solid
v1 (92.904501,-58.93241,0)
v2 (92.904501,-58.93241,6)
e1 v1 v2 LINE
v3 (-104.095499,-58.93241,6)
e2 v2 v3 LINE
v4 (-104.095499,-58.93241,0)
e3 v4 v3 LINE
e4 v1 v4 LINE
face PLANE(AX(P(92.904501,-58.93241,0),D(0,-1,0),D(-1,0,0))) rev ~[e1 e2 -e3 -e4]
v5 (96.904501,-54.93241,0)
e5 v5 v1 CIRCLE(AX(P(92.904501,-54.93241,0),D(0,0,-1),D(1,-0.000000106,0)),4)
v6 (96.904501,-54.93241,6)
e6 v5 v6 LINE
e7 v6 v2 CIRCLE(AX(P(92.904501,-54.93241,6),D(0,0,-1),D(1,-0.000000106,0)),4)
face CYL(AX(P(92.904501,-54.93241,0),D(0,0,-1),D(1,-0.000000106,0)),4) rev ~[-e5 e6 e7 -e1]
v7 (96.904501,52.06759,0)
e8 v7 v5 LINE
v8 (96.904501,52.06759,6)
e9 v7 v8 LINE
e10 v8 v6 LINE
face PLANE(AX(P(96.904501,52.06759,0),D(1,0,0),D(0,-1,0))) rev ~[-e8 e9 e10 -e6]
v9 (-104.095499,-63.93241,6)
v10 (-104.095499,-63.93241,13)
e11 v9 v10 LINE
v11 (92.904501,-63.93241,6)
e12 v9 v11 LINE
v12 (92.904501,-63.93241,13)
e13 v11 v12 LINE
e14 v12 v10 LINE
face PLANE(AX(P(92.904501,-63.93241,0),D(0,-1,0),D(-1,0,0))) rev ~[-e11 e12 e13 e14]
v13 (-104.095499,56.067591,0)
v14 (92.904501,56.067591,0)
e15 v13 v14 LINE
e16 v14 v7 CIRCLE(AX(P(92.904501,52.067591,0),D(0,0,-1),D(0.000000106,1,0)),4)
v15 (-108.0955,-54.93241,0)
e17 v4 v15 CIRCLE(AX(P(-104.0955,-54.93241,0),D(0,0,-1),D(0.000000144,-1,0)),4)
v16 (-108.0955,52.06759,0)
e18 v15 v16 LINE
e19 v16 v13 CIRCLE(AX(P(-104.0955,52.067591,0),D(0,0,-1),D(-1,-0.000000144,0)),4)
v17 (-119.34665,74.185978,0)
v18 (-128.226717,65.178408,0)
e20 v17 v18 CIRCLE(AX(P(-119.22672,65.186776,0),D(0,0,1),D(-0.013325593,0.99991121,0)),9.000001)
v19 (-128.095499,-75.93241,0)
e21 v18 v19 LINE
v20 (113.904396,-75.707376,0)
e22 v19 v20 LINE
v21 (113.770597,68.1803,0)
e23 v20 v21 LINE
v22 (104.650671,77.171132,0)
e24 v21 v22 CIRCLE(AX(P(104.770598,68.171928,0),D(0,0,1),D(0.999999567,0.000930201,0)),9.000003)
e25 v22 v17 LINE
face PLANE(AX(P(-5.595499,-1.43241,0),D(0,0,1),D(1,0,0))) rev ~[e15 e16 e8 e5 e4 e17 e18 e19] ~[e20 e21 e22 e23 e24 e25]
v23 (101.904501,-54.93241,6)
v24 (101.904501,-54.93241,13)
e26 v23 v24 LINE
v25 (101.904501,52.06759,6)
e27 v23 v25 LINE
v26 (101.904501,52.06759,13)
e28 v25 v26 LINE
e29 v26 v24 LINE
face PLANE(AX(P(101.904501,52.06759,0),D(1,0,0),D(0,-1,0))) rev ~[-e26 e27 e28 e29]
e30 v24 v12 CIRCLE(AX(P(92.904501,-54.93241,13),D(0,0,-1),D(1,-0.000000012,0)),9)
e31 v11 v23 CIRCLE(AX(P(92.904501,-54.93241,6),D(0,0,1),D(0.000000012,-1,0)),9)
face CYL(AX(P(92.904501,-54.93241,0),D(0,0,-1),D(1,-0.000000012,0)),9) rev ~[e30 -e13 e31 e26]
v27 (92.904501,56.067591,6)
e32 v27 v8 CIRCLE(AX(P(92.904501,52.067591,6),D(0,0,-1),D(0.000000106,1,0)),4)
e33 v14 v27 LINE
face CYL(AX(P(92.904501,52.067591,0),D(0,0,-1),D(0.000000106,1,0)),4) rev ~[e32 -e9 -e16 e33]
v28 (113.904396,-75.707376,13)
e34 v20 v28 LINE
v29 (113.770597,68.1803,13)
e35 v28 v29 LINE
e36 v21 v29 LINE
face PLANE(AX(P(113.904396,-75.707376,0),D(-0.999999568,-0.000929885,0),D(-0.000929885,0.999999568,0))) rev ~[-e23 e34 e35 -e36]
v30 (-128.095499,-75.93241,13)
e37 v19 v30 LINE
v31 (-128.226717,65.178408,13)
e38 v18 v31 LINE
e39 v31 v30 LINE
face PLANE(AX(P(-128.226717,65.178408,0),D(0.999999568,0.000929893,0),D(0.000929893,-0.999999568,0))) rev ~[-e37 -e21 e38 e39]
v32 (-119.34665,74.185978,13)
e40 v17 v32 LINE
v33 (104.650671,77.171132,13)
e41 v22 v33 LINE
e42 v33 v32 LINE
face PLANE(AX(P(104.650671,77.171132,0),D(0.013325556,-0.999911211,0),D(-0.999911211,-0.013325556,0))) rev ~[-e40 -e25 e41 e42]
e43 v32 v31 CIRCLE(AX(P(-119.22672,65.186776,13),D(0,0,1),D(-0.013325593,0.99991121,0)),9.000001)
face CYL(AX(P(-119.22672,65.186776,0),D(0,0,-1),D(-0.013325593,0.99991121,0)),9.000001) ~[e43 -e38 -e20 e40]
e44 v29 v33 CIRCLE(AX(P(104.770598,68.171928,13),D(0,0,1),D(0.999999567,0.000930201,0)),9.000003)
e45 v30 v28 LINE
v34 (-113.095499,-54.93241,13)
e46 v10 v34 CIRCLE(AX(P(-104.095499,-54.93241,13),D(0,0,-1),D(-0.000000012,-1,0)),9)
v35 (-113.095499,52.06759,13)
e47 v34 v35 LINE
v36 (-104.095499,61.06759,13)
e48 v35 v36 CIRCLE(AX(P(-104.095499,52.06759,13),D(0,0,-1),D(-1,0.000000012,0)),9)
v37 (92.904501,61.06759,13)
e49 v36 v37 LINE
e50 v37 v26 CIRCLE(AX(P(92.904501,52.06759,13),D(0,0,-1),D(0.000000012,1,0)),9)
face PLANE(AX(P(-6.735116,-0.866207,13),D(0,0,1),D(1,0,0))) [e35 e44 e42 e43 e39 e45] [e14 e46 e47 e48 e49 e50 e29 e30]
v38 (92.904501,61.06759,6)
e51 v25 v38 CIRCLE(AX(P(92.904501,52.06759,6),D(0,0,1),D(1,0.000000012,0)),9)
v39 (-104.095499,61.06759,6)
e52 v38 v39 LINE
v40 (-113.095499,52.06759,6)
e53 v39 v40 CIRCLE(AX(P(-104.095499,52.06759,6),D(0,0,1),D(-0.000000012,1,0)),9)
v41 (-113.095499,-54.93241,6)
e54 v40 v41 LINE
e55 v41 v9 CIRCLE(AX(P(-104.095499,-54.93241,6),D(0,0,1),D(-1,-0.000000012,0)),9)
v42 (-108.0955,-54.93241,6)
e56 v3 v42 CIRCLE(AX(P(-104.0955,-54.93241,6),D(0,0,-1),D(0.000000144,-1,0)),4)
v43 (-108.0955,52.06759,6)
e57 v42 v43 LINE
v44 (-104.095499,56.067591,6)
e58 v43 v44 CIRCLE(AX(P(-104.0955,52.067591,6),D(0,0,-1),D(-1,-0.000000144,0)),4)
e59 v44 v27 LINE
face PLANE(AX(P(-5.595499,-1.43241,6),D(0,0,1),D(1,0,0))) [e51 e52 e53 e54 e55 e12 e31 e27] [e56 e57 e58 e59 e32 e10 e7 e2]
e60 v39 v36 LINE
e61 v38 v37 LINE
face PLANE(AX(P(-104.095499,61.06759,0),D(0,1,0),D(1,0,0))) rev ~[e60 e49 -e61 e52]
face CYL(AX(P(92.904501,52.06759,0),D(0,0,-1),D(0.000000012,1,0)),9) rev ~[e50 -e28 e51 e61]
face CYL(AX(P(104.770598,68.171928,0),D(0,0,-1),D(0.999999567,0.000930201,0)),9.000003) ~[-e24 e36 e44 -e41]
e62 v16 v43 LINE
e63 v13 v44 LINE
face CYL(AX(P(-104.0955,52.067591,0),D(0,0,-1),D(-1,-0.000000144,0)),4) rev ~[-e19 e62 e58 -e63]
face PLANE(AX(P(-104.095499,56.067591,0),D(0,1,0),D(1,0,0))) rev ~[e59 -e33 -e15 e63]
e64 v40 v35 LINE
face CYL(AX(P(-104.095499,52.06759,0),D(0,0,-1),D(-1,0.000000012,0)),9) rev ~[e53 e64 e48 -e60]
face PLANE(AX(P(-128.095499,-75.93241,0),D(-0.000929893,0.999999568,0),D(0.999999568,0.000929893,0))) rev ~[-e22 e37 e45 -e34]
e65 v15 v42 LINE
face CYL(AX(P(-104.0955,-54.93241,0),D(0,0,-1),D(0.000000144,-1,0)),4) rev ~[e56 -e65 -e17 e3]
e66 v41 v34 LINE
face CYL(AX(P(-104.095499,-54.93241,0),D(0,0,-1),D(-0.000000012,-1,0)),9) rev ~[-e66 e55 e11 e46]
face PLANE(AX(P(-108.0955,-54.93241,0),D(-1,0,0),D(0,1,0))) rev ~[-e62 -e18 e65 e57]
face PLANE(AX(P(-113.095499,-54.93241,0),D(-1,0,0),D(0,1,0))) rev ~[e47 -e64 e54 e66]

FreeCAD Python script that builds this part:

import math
import FreeCAD as App
import Part
import Sketcher

V = App.Vector
Q = App.Units.Quantity

doc = App.newDocument("Part")
body = doc.addObject("PartDesign::Body", "Body")

# Sketch on XY plane
sketch1 = body.newObject("Sketcher::SketchObject", "Sketch")
sketch1.AttachmentSupport = (doc.getObject("XY_Plane"), [""])
sketch1.MapMode = "FlatFace"
sketch1.addGeometry(Part.LineSegment(V(-128, 65, 0), V(-128, -76, 0)), False)
sketch1.addGeometry(Part.LineSegment(V(-128, -76, 0), V(114, -76, 0)), False)
sketch1.addGeometry(Part.LineSegment(V(114, -76, 0), V(114, 68, 0)), False)
sketch1.addGeometry(Part.ArcOfCircle(Part.Circle(V(105, 68, 0), V(0, 0, 1), 9), math.radians(0), math.radians(91)), False)
sketch1.addGeometry(Part.LineSegment(V(105, 77, 0), V(-119, 74, 0)), False)
sketch1.addGeometry(Part.ArcOfCircle(Part.Circle(V(-119, 65, 0), V(0, 0, 1), 9), math.radians(91), math.radians(180)), False)
sketch1.addGeometry(Part.ArcOfCircle(Part.Circle(V(93, -55, 0), V(0, 0, 1), 9), math.radians(-90), math.radians(0)), False)
sketch1.addGeometry(Part.LineSegment(V(93, -64, 0), V(-104, -64, 0)), False)
sketch1.addGeometry(Part.ArcOfCircle(Part.Circle(V(-104, -55, 0), V(0, 0, 1), 9), math.radians(-180), math.radians(-90)), False)
sketch1.addGeometry(Part.LineSegment(V(-113, -55, 0), V(-113, 52, 0)), False)
sketch1.addGeometry(Part.ArcOfCircle(Part.Circle(V(-104, 52, 0), V(0, 0, 1), 9), math.radians(90), math.radians(180)), False)
sketch1.addGeometry(Part.LineSegment(V(-104, 61, 0), V(93, 61, 0)), False)
sketch1.addGeometry(Part.ArcOfCircle(Part.Circle(V(93, 52, 0), V(0, 0, 1), 9), math.radians(0), math.radians(90)), False)
sketch1.addGeometry(Part.LineSegment(V(102, 52, 0), V(102, -55, 0)), False)
sketch1.addConstraint(Sketcher.Constraint("Coincident", 0, 2, 1, 1))
sketch1.addConstraint(Sketcher.Constraint("Coincident", 1, 2, 2, 1))
sketch1.addConstraint(Sketcher.Constraint("Tangent", 2, 2, 3, 1))
sketch1.addConstraint(Sketcher.Constraint("Tangent", 3, 2, 4, 1))
sketch1.addConstraint(Sketcher.Constraint("Tangent", 4, 2, 5, 1))
sketch1.addConstraint(Sketcher.Constraint("Tangent", 5, 2, 0, 1))
sketch1.addConstraint(Sketcher.Constraint("Tangent", 6, 1, 7, 1))
sketch1.addConstraint(Sketcher.Constraint("Tangent", 7, 2, 8, 2))
sketch1.addConstraint(Sketcher.Constraint("Tangent", 8, 1, 9, 1))
sketch1.addConstraint(Sketcher.Constraint("Tangent", 9, 2, 10, 2))
sketch1.addConstraint(Sketcher.Constraint("Tangent", 10, 1, 11, 1))
sketch1.addConstraint(Sketcher.Constraint("Tangent", 11, 2, 12, 2))
sketch1.addConstraint(Sketcher.Constraint("Tangent", 12, 1, 13, 1))
sketch1.addConstraint(Sketcher.Constraint("Tangent", 13, 2, 6, 2))
sketch1.addConstraint(Sketcher.Constraint("Horizontal", 7))
sketch1.addConstraint(Sketcher.Constraint("Vertical", 9))
sketch1.addConstraint(Sketcher.Constraint("Horizontal", 11))
sketch1.addConstraint(Sketcher.Constraint("Vertical", 13))
sketch1.addConstraint(Sketcher.Constraint("Equal", 3, 5))
sketch1.addConstraint(Sketcher.Constraint("Equal", 5, 6))
sketch1.addConstraint(Sketcher.Constraint("Equal", 6, 8))
sketch1.addConstraint(Sketcher.Constraint("Equal", 8, 10))
sketch1.addConstraint(Sketcher.Constraint("Equal", 10, 12))
sketch1.addConstraint(Sketcher.Constraint("Perpendicular", 0, 1))
sketch1.addConstraint(Sketcher.Constraint("Perpendicular", 1, 2))
sketch1.addConstraint(Sketcher.Constraint("Radius", 5, Q("9.000001 mm")))
sketch1.addConstraint(Sketcher.Constraint("DistanceX", 7, 2, 7, 1, Q("197 mm")))
sketch1.addConstraint(Sketcher.Constraint("DistanceY", 9, 1, 9, 2, Q("107 mm")))
sketch1.addConstraint(Sketcher.Constraint("Distance", 1, Q("242 mm")))
sketch1.addConstraint(Sketcher.Constraint("DistanceX", 0, 2, 8, 3, Q("24 mm")))
sketch1.addConstraint(Sketcher.Constraint("DistanceY", 0, 2, 8, 3, Q("21 mm")))
sketch1.addConstraint(Sketcher.Constraint("DistanceX", -1, 1, 3, 3, Q("104.770598 mm")))
sketch1.addConstraint(Sketcher.Constraint("DistanceX", -1, 1, 6, 3, Q("92.904501 mm")))
sketch1.addConstraint(Sketcher.Constraint("DistanceY", -1, 1, 2, 2, Q("68.1803 mm")))
sketch1.addConstraint(Sketcher.Constraint("Distance", 0, Q("141.110879 mm")))
sketch1.addConstraint(Sketcher.Constraint("Distance", 2, Q("143.887738 mm")))
pad1 = body.newObject("PartDesign::Pad", "Pad")
pad1.Profile = sketch1
pad1.Length = 13

# Sketch on XY plane
sketch2 = body.newObject("Sketcher::SketchObject", "Sketch001")
sketch2.AttachmentSupport = (doc.getObject("XY_Plane"), [""])
sketch2.MapMode = "FlatFace"
sketch2.addGeometry(Part.ArcOfCircle(Part.Circle(V(-104.1, -54.9, 0), V(0, 0, 1), 9), math.radians(-180), math.radians(-90)), False)
sketch2.addGeometry(Part.LineSegment(V(-104.1, -63.9, 0), V(92.9, -63.9, 0)), False)
sketch2.addGeometry(Part.ArcOfCircle(Part.Circle(V(92.9, -54.9, 0), V(0, 0, 1), 9), math.radians(-90), math.radians(0)), False)
sketch2.addGeometry(Part.LineSegment(V(101.9, -54.9, 0), V(101.9, 52.1, 0)), False)
sketch2.addGeometry(Part.ArcOfCircle(Part.Circle(V(92.9, 52.1, 0), V(0, 0, 1), 9), math.radians(0), math.radians(90)), False)
sketch2.addGeometry(Part.LineSegment(V(92.9, 61.1, 0), V(-104.1, 61.1, 0)), False)
sketch2.addGeometry(Part.ArcOfCircle(Part.Circle(V(-104.1, 52.1, 0), V(0, 0, 1), 9), math.radians(90), math.radians(180)), False)
sketch2.addGeometry(Part.LineSegment(V(-113.1, 52.1, 0), V(-113.1, -54.9, 0)), False)
sketch2.addGeometry(Part.LineSegment(V(96.9, 52.1, 0), V(96.9, -54.9, 0)), False)
sketch2.addGeometry(Part.ArcOfCircle(Part.Circle(V(92.9, -54.9, 0), V(0, 0, 1), 4), math.radians(-90), math.radians(0)), False)
sketch2.addGeometry(Part.LineSegment(V(92.9, -58.9, 0), V(-104.1, -58.9, 0)), False)
sketch2.addGeometry(Part.ArcOfCircle(Part.Circle(V(-104.1, -54.9, 0), V(0, 0, 1), 4), math.radians(-180), math.radians(-90)), False)
sketch2.addGeometry(Part.LineSegment(V(-108.1, -54.9, 0), V(-108.1, 52.1, 0)), False)
sketch2.addGeometry(Part.ArcOfCircle(Part.Circle(V(-104.1, 52.1, 0), V(0, 0, 1), 4), math.radians(90), math.radians(180)), False)
sketch2.addGeometry(Part.LineSegment(V(-104.1, 56.1, 0), V(92.9, 56.1, 0)), False)
sketch2.addGeometry(Part.ArcOfCircle(Part.Circle(V(92.9, 52.1, 0), V(0, 0, 1), 4), math.radians(0), math.radians(90)), False)
sketch2.addConstraint(Sketcher.Constraint("Tangent", 0, 2, 1, 1))
sketch2.addConstraint(Sketcher.Constraint("Tangent", 1, 2, 2, 1))
sketch2.addConstraint(Sketcher.Constraint("Tangent", 2, 2, 3, 1))
sketch2.addConstraint(Sketcher.Constraint("Tangent", 3, 2, 4, 1))
sketch2.addConstraint(Sketcher.Constraint("Tangent", 4, 2, 5, 1))
sketch2.addConstraint(Sketcher.Constraint("Tangent", 5, 2, 6, 1))
sketch2.addConstraint(Sketcher.Constraint("Tangent", 6, 2, 7, 1))
sketch2.addConstraint(Sketcher.Constraint("Tangent", 7, 2, 0, 1))
sketch2.addConstraint(Sketcher.Constraint("Tangent", 8, 2, 9, 2))
sketch2.addConstraint(Sketcher.Constraint("Tangent", 9, 1, 10, 1))
sketch2.addConstraint(Sketcher.Constraint("Tangent", 10, 2, 11, 2))
sketch2.addConstraint(Sketcher.Constraint("Tangent", 11, 1, 12, 1))
sketch2.addConstraint(Sketcher.Constraint("Tangent", 12, 2, 13, 2))
sketch2.addConstraint(Sketcher.Constraint("Tangent", 13, 1, 14, 1))
sketch2.addConstraint(Sketcher.Constraint("Tangent", 14, 2, 15, 2))
sketch2.addConstraint(Sketcher.Constraint("Tangent", 15, 1, 8, 1))
sketch2.addConstraint(Sketcher.Constraint("Horizontal", 1))
sketch2.addConstraint(Sketcher.Constraint("Vertical", 3))
sketch2.addConstraint(Sketcher.Constraint("Horizontal", 5))
sketch2.addConstraint(Sketcher.Constraint("Vertical", 7))
sketch2.addConstraint(Sketcher.Constraint("Vertical", 8))
sketch2.addConstraint(Sketcher.Constraint("Horizontal", 10))
sketch2.addConstraint(Sketcher.Constraint("Vertical", 12))
sketch2.addConstraint(Sketcher.Constraint("Horizontal", 14))
sketch2.addConstraint(Sketcher.Constraint("Coincident", 9, 3, 2, 3))
sketch2.addConstraint(Sketcher.Constraint("Coincident", 11, 3, 0, 3))
sketch2.addConstraint(Sketcher.Constraint("Coincident", 13, 3, 6, 3))
sketch2.addConstraint(Sketcher.Constraint("Equal", 0, 2))
sketch2.addConstraint(Sketcher.Constraint("Equal", 2, 4))
sketch2.addConstraint(Sketcher.Constraint("Equal", 4, 6))
sketch2.addConstraint(Sketcher.Constraint("Equal", 13, 15))
sketch2.addConstraint(Sketcher.Constraint("Radius", 0, Q("9 mm")))
sketch2.addConstraint(Sketcher.Constraint("Radius", 9, Q("4 mm")))
sketch2.addConstraint(Sketcher.Constraint("DistanceX", 1, 1, 1, 2, Q("197 mm")))
sketch2.addConstraint(Sketcher.Constraint("DistanceY", 3, 1, 3, 2, Q("107 mm")))
sketch2.addConstraint(Sketcher.Constraint("DistanceX", 0, 3, -1, 1, Q("104.095499 mm")))
sketch2.addConstraint(Sketcher.Constraint("DistanceY", 0, 3, -1, 1, Q("54.93241 mm")))
pad2 = body.newObject("PartDesign::Pad", "Pad001")
pad2.Profile = sketch2
pad2.Length = 6

doc.recompute()
